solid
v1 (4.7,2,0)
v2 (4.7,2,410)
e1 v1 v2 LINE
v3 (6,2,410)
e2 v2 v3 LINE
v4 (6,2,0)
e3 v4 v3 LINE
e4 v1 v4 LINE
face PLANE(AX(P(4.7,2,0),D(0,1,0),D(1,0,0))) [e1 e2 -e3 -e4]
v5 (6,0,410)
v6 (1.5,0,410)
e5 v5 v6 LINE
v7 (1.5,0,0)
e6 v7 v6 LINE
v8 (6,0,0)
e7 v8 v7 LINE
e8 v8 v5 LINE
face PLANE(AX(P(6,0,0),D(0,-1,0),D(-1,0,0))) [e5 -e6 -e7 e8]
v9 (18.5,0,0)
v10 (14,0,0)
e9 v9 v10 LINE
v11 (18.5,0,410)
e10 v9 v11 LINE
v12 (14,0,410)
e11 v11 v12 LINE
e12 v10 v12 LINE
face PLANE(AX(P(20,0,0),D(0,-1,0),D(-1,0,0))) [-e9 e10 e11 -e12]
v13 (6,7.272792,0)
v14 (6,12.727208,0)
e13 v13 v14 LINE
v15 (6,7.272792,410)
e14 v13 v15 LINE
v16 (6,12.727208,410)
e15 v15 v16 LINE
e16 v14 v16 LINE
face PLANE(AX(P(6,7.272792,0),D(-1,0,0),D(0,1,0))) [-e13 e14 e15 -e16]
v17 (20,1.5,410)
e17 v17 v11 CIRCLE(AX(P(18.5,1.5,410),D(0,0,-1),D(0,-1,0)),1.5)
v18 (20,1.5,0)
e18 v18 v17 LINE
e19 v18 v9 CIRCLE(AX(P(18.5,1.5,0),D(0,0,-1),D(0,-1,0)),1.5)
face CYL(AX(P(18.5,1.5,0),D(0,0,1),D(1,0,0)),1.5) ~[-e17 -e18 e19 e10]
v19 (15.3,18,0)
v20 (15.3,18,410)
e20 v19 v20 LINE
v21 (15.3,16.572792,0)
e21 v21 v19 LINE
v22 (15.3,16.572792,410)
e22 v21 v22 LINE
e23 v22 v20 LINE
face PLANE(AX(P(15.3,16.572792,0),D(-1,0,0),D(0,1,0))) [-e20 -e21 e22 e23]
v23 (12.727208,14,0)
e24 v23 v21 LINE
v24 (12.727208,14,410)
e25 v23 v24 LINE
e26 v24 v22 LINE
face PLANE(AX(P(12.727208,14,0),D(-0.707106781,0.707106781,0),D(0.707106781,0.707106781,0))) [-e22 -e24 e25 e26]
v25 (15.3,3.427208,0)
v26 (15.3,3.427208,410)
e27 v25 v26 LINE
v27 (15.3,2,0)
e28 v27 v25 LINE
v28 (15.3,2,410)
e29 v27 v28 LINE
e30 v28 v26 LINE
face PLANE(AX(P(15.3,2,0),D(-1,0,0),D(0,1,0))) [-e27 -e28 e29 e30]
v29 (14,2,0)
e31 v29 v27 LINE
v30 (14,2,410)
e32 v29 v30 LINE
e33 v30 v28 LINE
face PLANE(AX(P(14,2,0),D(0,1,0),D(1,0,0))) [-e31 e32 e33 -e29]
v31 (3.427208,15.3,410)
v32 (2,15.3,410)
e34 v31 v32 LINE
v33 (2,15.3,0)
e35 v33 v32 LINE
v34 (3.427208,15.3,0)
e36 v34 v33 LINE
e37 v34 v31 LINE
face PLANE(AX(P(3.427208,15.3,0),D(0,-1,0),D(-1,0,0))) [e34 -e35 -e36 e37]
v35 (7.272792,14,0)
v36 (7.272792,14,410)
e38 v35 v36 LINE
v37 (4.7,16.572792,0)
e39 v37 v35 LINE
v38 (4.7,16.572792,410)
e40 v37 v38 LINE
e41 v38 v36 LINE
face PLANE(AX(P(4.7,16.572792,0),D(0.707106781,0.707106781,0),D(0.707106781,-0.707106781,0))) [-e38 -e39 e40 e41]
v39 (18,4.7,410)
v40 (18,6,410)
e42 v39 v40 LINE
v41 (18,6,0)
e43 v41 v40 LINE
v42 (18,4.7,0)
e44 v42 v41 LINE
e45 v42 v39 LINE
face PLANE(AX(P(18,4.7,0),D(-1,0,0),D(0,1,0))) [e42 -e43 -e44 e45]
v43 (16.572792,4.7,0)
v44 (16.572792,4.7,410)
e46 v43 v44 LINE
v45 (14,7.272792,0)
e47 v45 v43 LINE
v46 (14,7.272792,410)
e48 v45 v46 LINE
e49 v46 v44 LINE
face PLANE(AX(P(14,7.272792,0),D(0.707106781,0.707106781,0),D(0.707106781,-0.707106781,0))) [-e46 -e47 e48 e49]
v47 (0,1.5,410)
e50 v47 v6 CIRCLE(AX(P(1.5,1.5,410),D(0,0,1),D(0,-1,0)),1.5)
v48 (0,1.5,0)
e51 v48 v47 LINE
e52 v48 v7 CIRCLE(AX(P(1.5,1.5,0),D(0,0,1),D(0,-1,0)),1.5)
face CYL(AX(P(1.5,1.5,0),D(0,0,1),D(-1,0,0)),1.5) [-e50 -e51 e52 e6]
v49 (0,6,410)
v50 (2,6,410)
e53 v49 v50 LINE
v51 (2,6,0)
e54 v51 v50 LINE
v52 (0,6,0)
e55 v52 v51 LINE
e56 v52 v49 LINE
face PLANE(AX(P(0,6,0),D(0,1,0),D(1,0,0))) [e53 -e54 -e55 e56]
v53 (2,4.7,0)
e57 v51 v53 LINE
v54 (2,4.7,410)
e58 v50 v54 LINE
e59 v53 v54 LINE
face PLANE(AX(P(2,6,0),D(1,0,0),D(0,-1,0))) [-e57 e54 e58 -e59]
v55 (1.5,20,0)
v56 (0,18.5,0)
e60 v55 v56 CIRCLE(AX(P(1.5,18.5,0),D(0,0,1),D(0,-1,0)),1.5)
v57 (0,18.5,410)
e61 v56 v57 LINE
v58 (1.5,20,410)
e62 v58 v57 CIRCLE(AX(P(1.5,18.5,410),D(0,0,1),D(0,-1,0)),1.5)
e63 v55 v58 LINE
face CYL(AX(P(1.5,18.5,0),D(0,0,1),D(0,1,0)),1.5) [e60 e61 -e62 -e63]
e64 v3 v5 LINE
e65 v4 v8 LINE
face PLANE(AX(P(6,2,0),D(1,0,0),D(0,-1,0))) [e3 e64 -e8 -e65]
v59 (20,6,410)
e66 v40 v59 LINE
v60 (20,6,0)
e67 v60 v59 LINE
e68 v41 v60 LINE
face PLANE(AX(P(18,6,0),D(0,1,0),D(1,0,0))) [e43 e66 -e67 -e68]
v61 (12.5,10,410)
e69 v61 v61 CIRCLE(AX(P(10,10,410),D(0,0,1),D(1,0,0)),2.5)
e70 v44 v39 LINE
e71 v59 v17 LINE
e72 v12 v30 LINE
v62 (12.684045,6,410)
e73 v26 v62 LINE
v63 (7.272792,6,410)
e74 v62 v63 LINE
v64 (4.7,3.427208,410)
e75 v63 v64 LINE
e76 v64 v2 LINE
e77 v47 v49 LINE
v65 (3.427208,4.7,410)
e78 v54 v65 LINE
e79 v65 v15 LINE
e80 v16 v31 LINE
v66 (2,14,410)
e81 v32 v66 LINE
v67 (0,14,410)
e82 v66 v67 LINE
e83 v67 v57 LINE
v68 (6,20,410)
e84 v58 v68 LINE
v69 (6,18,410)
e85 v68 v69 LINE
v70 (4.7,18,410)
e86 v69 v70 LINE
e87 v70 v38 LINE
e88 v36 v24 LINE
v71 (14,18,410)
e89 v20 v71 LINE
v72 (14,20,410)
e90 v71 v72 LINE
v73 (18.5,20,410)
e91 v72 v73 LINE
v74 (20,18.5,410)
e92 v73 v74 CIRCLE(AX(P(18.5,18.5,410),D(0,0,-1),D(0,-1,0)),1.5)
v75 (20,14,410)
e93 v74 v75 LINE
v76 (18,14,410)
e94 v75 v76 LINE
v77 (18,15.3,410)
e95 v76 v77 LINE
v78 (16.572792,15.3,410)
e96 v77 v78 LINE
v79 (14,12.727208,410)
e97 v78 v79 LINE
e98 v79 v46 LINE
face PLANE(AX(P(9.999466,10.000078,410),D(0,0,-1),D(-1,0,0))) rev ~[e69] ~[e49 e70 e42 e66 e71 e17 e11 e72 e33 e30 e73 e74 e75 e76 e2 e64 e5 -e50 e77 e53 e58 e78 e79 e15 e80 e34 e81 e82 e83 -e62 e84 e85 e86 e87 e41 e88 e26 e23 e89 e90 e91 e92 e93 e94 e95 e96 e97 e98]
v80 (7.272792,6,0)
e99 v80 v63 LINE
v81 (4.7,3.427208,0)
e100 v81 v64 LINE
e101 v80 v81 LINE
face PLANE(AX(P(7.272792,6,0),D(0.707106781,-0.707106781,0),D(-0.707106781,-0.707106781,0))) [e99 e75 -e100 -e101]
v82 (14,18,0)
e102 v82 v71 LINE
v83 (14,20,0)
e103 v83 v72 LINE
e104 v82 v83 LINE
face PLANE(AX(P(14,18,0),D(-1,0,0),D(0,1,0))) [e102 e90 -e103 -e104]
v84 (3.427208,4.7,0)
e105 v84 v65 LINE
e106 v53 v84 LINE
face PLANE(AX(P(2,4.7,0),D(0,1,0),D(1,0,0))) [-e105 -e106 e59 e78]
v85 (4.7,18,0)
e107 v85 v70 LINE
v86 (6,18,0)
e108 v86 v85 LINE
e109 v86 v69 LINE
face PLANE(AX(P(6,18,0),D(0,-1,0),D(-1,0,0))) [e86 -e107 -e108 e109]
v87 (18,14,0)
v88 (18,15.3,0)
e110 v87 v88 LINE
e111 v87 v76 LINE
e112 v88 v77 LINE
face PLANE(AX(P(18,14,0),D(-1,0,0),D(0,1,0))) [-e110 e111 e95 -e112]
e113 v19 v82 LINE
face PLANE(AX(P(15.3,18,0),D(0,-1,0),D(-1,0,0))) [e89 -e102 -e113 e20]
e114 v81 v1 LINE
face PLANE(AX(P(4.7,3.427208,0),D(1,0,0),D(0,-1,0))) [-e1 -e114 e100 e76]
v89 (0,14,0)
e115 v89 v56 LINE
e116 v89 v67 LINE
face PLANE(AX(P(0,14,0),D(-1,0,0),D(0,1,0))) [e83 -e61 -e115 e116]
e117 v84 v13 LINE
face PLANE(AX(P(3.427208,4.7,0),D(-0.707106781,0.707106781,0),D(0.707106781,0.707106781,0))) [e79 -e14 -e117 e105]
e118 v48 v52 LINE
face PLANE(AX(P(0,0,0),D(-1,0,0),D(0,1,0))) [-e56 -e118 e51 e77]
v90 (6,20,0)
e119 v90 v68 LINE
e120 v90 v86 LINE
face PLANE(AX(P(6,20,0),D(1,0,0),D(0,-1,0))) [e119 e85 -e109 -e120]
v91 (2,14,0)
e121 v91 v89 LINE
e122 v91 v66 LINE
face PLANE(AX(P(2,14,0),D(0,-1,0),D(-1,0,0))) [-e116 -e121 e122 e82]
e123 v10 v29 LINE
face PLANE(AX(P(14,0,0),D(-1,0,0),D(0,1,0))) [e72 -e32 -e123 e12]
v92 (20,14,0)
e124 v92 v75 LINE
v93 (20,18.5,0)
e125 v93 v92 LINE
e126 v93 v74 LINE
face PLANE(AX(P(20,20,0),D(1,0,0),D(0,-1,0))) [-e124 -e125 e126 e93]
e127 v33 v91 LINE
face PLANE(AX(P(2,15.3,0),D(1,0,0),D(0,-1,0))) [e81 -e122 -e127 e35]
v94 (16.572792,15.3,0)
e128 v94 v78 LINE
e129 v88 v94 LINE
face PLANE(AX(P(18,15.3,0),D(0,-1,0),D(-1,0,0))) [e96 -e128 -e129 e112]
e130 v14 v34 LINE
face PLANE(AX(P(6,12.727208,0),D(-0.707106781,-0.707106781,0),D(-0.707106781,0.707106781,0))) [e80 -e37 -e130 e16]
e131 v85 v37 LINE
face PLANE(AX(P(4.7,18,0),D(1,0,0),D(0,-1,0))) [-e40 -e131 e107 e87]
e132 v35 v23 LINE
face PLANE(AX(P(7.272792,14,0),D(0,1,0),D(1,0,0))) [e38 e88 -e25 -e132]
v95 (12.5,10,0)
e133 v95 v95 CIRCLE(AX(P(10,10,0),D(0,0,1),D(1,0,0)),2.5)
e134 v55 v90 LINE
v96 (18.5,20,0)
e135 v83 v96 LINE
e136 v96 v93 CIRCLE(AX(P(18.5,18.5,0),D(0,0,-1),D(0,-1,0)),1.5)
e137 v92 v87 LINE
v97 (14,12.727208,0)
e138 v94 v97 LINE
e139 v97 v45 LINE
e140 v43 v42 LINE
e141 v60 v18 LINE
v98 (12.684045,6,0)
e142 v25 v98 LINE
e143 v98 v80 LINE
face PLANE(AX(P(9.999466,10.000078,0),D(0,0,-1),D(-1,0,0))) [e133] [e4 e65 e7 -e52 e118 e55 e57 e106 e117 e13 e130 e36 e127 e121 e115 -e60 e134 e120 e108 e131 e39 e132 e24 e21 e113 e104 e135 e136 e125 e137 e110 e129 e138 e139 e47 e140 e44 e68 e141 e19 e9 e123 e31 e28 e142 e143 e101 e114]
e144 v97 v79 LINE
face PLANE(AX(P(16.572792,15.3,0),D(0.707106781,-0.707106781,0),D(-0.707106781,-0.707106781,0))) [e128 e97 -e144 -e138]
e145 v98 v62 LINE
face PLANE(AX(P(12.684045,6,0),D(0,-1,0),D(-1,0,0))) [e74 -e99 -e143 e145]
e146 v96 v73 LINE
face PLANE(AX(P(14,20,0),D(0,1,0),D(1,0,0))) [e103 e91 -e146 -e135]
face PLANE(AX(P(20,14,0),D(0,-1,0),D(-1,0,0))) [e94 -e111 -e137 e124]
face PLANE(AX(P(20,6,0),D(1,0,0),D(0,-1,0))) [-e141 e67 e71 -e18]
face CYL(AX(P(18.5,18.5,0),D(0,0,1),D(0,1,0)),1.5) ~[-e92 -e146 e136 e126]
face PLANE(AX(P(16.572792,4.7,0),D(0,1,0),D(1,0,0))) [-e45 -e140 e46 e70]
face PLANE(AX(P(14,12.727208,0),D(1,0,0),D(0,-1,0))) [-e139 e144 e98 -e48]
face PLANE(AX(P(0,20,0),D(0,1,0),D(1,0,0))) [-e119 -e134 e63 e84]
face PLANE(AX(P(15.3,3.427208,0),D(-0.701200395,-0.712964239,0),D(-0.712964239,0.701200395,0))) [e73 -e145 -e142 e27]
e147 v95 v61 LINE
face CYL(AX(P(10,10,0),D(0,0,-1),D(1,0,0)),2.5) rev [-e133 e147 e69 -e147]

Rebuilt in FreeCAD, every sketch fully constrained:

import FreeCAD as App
import Part
import Sketcher


def edges_at(feature, points):
    """Names of the edges that pass closest to the given points."""
    edges = feature.Shape.Edges
    near = lambda p: min(range(len(edges)), key=lambda i: edges[i].distToShape(Part.Vertex(*p))[0])
    return sorted({f"Edge{near(p) + 1}" for p in points})

doc = App.newDocument("Part")
body = doc.addObject("PartDesign::Body", "Body")

# Sketch on XY plane
sketch1 = doc.addObject("Sketcher::SketchObject", "Sketch")
body.addObject(sketch1)
sketch1.AttachmentSupport = (doc.XY_Plane, [""])
sketch1.MapMode = "FlatFace"
sketch1.addGeometry([
    Part.LineSegment(App.Vector(20, 20, 0), App.Vector(14, 20, 0)),  # 0
    Part.LineSegment(App.Vector(14, 20, 0), App.Vector(14, 18, 0)),  # 1
    Part.LineSegment(App.Vector(14, 18, 0), App.Vector(15.3, 18, 0)),  # 2
    Part.LineSegment(App.Vector(15.3, 18, 0), App.Vector(15.3, 16.6, 0)),  # 3
    Part.LineSegment(App.Vector(15.3, 16.6, 0), App.Vector(12.7, 14, 0)),  # 4
    Part.LineSegment(App.Vector(12.7, 14, 0), App.Vector(7.3, 14, 0)),  # 5
    Part.LineSegment(App.Vector(7.3, 14, 0), App.Vector(4.7, 16.6, 0)),  # 6
    Part.LineSegment(App.Vector(4.7, 16.6, 0), App.Vector(4.7, 18, 0)),  # 7
    Part.LineSegment(App.Vector(4.7, 18, 0), App.Vector(6, 18, 0)),  # 8
    Part.LineSegment(App.Vector(6, 18, 0), App.Vector(6, 20, 0)),  # 9
    Part.LineSegment(App.Vector(6, 20, 0), App.Vector(0, 20, 0)),  # 10
    Part.LineSegment(App.Vector(0, 20, 0), App.Vector(0, 14, 0)),  # 11
    Part.LineSegment(App.Vector(0, 14, 0), App.Vector(2, 14, 0)),  # 12
    Part.LineSegment(App.Vector(2, 14, 0), App.Vector(2, 15.3, 0)),  # 13
    Part.LineSegment(App.Vector(2, 15.3, 0), App.Vector(3.4, 15.3, 0)),  # 14
    Part.LineSegment(App.Vector(3.4, 15.3, 0), App.Vector(6, 12.7, 0)),  # 15
    Part.LineSegment(App.Vector(6, 12.7, 0), App.Vector(6, 7.3, 0)),  # 16
    Part.LineSegment(App.Vector(6, 7.3, 0), App.Vector(3.4, 4.7, 0)),  # 17
    Part.LineSegment(App.Vector(3.4, 4.7, 0), App.Vector(2, 4.7, 0)),  # 18
    Part.LineSegment(App.Vector(2, 4.7, 0), App.Vector(2, 6, 0)),  # 19
    Part.LineSegment(App.Vector(2, 6, 0), App.Vector(0, 6, 0)),  # 20
    Part.LineSegment(App.Vector(0, 6, 0), App.Vector(0, 0, 0)),  # 21
    Part.LineSegment(App.Vector(0, 0, 0), App.Vector(6, 0, 0)),  # 22
    Part.LineSegment(App.Vector(6, 0, 0), App.Vector(6, 2, 0)),  # 23
    Part.LineSegment(App.Vector(6, 2, 0), App.Vector(4.7, 2, 0)),  # 24
    Part.LineSegment(App.Vector(4.7, 2, 0), App.Vector(4.7, 3.4, 0)),  # 25
    Part.LineSegment(App.Vector(4.7, 3.4, 0), App.Vector(7.3, 6, 0)),  # 26
    Part.LineSegment(App.Vector(7.3, 6, 0), App.Vector(12.7, 6, 0)),  # 27
    Part.LineSegment(App.Vector(12.7, 6, 0), App.Vector(15.3, 3.4, 0)),  # 28
    Part.LineSegment(App.Vector(15.3, 3.4, 0), App.Vector(15.3, 2, 0)),  # 29
    Part.LineSegment(App.Vector(15.3, 2, 0), App.Vector(14, 2, 0)),  # 30
    Part.LineSegment(App.Vector(14, 2, 0), App.Vector(14, 0, 0)),  # 31
    Part.LineSegment(App.Vector(14, 0, 0), App.Vector(20, 0, 0)),  # 32
    Part.LineSegment(App.Vector(20, 0, 0), App.Vector(20, 6, 0)),  # 33
    Part.LineSegment(App.Vector(20, 6, 0), App.Vector(18, 6, 0)),  # 34
    Part.LineSegment(App.Vector(18, 6, 0), App.Vector(18, 4.7, 0)),  # 35
    Part.LineSegment(App.Vector(18, 4.7, 0), App.Vector(16.6, 4.7, 0)),  # 36
    Part.LineSegment(App.Vector(16.6, 4.7, 0), App.Vector(14, 7.3, 0)),  # 37
    Part.LineSegment(App.Vector(14, 7.3, 0), App.Vector(14, 12.7, 0)),  # 38
    Part.LineSegment(App.Vector(14, 12.7, 0), App.Vector(16.6, 15.3, 0)),  # 39
    Part.LineSegment(App.Vector(16.6, 15.3, 0), App.Vector(18, 15.3, 0)),  # 40
    Part.LineSegment(App.Vector(18, 15.3, 0), App.Vector(18, 14, 0)),  # 41
    Part.LineSegment(App.Vector(18, 14, 0), App.Vector(20, 14, 0)),  # 42
    Part.LineSegment(App.Vector(20, 14, 0), App.Vector(20, 20, 0)),  # 43
    Part.Circle(App.Vector(10, 10, 0), App.Vector(0, 0, 1), 2.5),  # 44
], False)
sketch1.addConstraint([
    Sketcher.Constraint("Coincident", 0, 2, 1, 1),
    Sketcher.Constraint("Coincident", 1, 2, 2, 1),
    Sketcher.Constraint("Coincident", 2, 2, 3, 1),
    Sketcher.Constraint("Coincident", 3, 2, 4, 1),
    Sketcher.Constraint("Coincident", 4, 2, 5, 1),
    Sketcher.Constraint("Coincident", 5, 2, 6, 1),
    Sketcher.Constraint("Coincident", 6, 2, 7, 1),
    Sketcher.Constraint("Coincident", 7, 2, 8, 1),
    Sketcher.Constraint("Coincident", 8, 2, 9, 1),
    Sketcher.Constraint("Coincident", 9, 2, 10, 1),
    Sketcher.Constraint("Coincident", 10, 2, 11, 1),
    Sketcher.Constraint("Coincident", 11, 2, 12, 1),
    Sketcher.Constraint("Coincident", 12, 2, 13, 1),
    Sketcher.Constraint("Coincident", 13, 2, 14, 1),
    Sketcher.Constraint("Coincident", 14, 2, 15, 1),
    Sketcher.Constraint("Coincident", 15, 2, 16, 1),
    Sketcher.Constraint("Coincident", 16, 2, 17, 1),
    Sketcher.Constraint("Coincident", 17, 2, 18, 1),
    Sketcher.Constraint("Coincident", 18, 2, 19, 1),
    Sketcher.Constraint("Coincident", 19, 2, 20, 1),
    Sketcher.Constraint("Coincident", 20, 2, 21, 1),
    Sketcher.Constraint("Coincident", 21, 2, 22, 1),
    Sketcher.Constraint("Coincident", 22, 2, 23, 1),
    Sketcher.Constraint("Coincident", 23, 2, 24, 1),
    Sketcher.Constraint("Coincident", 24, 2, 25, 1),
    Sketcher.Constraint("Coincident", 25, 2, 26, 1),
    Sketcher.Constraint("Coincident", 26, 2, 27, 1),
    Sketcher.Constraint("Coincident", 27, 2, 28, 1),
    Sketcher.Constraint("Coincident", 28, 2, 29, 1),
    Sketcher.Constraint("Coincident", 29, 2, 30, 1),
    Sketcher.Constraint("Coincident", 30, 2, 31, 1),
    Sketcher.Constraint("Coincident", 31, 2, 32, 1),
    Sketcher.Constraint("Coincident", 32, 2, 33, 1),
    Sketcher.Constraint("Coincident", 33, 2, 34, 1),
    Sketcher.Constraint("Coincident", 34, 2, 35, 1),
    Sketcher.Constraint("Coincident", 35, 2, 36, 1),
    Sketcher.Constraint("Coincident", 36, 2, 37, 1),
    Sketcher.Constraint("Coincident", 37, 2, 38, 1),
    Sketcher.Constraint("Coincident", 38, 2, 39, 1),
    Sketcher.Constraint("Coincident", 39, 2, 40, 1),
    Sketcher.Constraint("Coincident", 40, 2, 41, 1),
    Sketcher.Constraint("Coincident", 41, 2, 42, 1),
    Sketcher.Constraint("Coincident", 42, 2, 43, 1),
    Sketcher.Constraint("Coincident", 43, 2, 0, 1),
    Sketcher.Constraint("Horizontal", 0),
    Sketcher.Constraint("Vertical", 1),
    Sketcher.Constraint("Horizontal", 2),
    Sketcher.Constraint("Vertical", 3),
    Sketcher.Constraint("Horizontal", 5),
    Sketcher.Constraint("Vertical", 7),
    Sketcher.Constraint("Horizontal", 8),
    Sketcher.Constraint("Vertical", 9),
    Sketcher.Constraint("Horizontal", 10),
    Sketcher.Constraint("Vertical", 11),
    Sketcher.Constraint("Horizontal", 12),
    Sketcher.Constraint("Vertical", 13),
    Sketcher.Constraint("Horizontal", 14),
    Sketcher.Constraint("Vertical", 16),
    Sketcher.Constraint("Horizontal", 18),
    Sketcher.Constraint("Vertical", 19),
    Sketcher.Constraint("Horizontal", 20),
    Sketcher.Constraint("Vertical", 21),
    Sketcher.Constraint("Horizontal", 22),
    Sketcher.Constraint("Vertical", 23),
    Sketcher.Constraint("Horizontal", 24),
    Sketcher.Constraint("Vertical", 25),
    Sketcher.Constraint("Horizontal", 27),
    Sketcher.Constraint("Vertical", 29),
    Sketcher.Constraint("Horizontal", 30),
    Sketcher.Constraint("Vertical", 31),
    Sketcher.Constraint("Horizontal", 32),
    Sketcher.Constraint("Vertical", 33),
    Sketcher.Constraint("Horizontal", 34),
    Sketcher.Constraint("Vertical", 35),
    Sketcher.Constraint("Horizontal", 36),
    Sketcher.Constraint("Vertical", 38),
    Sketcher.Constraint("Horizontal", 40),
    Sketcher.Constraint("Vertical", 41),
    Sketcher.Constraint("Horizontal", 42),
    Sketcher.Constraint("Vertical", 43),
    Sketcher.Constraint("Coincident", 21, 2, -1, 1),
    Sketcher.Constraint("PointOnObject", 10, 2, -2),
    Sketcher.Constraint("PointOnObject", 31, 2, -1),
    Sketcher.Constraint("Perpendicular", 4, 6),
    Sketcher.Constraint("Parallel", 6, 15),
    Sketcher.Constraint("Perpendicular", 15, 17),
    Sketcher.Constraint("Parallel", 17, 26),
    Sketcher.Constraint("Perpendicular", 26, 37),
    Sketcher.Constraint("Perpendicular", 37, 39),
    Sketcher.Constraint("Horizontal", 3, 2, 6, 2),
    Sketcher.Constraint("Horizontal", 2, 2, 7, 2),
    Sketcher.Constraint("Horizontal", 0, 2, 9, 2),
    Sketcher.Constraint("Horizontal", 5, 2, 11, 2),
    Sketcher.Constraint("Horizontal", 20, 2, 26, 2),
    Sketcher.Constraint("Horizontal", 25, 2, 28, 2),
    Sketcher.Constraint("Horizontal", 24, 2, 29, 2),
    Sketcher.Constraint("Horizontal", 27, 2, 33, 2),
    Sketcher.Constraint("Horizontal", 18, 2, 35, 2),
    Sketcher.Constraint("Horizontal", 16, 2, 37, 2),
    Sketcher.Constraint("Horizontal", 15, 2, 38, 2),
    Sketcher.Constraint("Horizontal", 14, 2, 39, 2),
    Sketcher.Constraint("Horizontal", 12, 2, 41, 2),
    Sketcher.Constraint("Vertical", 9, 2, 15, 2),
    Sketcher.Constraint("Vertical", 14, 2, 17, 2),
    Sketcher.Constraint("Vertical", 13, 2, 18, 2),
    Sketcher.Constraint("Vertical", 16, 2, 22, 2),
    Sketcher.Constraint("Vertical", 7, 2, 24, 2),
    Sketcher.Constraint("Vertical", 5, 2, 26, 2),
    Sketcher.Constraint("Vertical", 3, 2, 28, 2),
    Sketcher.Constraint("Vertical", 1, 2, 30, 2),
    Sketcher.Constraint("Vertical", 31, 2, 37, 2),
    Sketcher.Constraint("Vertical", 36, 2, 39, 2),
    Sketcher.Constraint("Vertical", 35, 2, 40, 2),
    Sketcher.Constraint("Vertical", 33, 2, 42, 2),
    Sketcher.Constraint("Equal", 2, 8),
    Sketcher.Constraint("Equal", 0, 10),
    Sketcher.Constraint("Equal", 20, 34),
    Sketcher.Constraint("Equal", 42, 1),
    Sketcher.Constraint("Equal", 40, 3),
    Sketcher.Constraint("Equal", 32, 11),
    Sketcher.Constraint("Equal", 30, 13),
    Sketcher.Constraint("Equal", 5, 16),
    Sketcher.Constraint("Equal", 13, 19),
    Sketcher.Constraint("Equal", 11, 21),
    Sketcher.Constraint("Equal", 9, 23),
    Sketcher.Constraint("Diameter", 44, 5.0),
    Sketcher.Constraint("DistanceX", 0, 2, 0, 1, 6.0),
    Sketcher.Constraint("DistanceX", 12, 1, 12, 2, 2.0),
    Sketcher.Constraint("DistanceX", 2, 1, 2, 2, 1.3),
    Sketcher.Constraint("DistanceX", -1, 1, 44, 3, 10.0),
    Sketcher.Constraint("DistanceY", -1, 1, 44, 3, 10.0),
    Sketcher.Constraint("DistanceX", -1, 1, 0, 2, 14.0),
    Sketcher.Constraint("DistanceX", 5, 2, 5, 1, 5.454416),
    Sketcher.Constraint("DistanceX", 27, 1, 27, 2, 5.411253),
])
pad1 = doc.addObject("PartDesign::Pad", "Pad")
body.addObject(pad1)
pad1.Profile = sketch1
pad1.Length = 410
doc.recompute()

fillet = doc.addObject("PartDesign::Fillet", "Fillet")
body.addObject(fillet)
fillet.Base = (pad1, edges_at(pad1, [
    (0, 20, 205),
    (20, 20, 205),
    (20, 0, 205),
    (0, 0, 205),
]))
fillet.Radius = 1.5

doc.recompute()
